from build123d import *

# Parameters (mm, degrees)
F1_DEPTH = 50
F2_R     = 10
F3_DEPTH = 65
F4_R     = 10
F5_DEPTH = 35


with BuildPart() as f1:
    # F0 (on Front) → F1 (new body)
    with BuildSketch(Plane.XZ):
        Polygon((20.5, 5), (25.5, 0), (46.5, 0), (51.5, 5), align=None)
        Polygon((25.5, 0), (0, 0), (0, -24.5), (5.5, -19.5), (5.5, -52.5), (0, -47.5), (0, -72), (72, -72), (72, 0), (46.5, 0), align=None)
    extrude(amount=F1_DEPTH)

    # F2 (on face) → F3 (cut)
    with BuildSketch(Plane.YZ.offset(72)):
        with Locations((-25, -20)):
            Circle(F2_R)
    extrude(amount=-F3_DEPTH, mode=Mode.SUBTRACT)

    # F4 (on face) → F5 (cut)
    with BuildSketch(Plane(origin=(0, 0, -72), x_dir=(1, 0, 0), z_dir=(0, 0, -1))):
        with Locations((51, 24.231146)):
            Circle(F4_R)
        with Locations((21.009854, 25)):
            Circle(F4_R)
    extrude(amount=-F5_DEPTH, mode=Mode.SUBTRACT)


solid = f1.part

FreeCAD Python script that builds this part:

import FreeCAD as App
import Part
import Sketcher

V = App.Vector
Q = App.Units.Quantity

doc = App.newDocument("Part")
body = doc.addObject("PartDesign::Body", "Body")

sketch1 = doc.addObject("Sketcher::SketchObject", "Sketch")
body.addObject(sketch1)
sketch1.AttachmentSupport = (doc.XZ_Plane, [""])
sketch1.MapMode = "FlatFace"
sketch1.addGeometry(Part.LineSegment(V(20, 5, 0), V(26, 0, 0)), False)
sketch1.addGeometry(Part.LineSegment(V(26, 0, 0), V(0, 0, 0)), False)
sketch1.addGeometry(Part.LineSegment(V(0, 0, 0), V(0, -24, 0)), False)
sketch1.addGeometry(Part.LineSegment(V(0, -24, 0), V(6, -20, 0)), False)
sketch1.addGeometry(Part.LineSegment(V(6, -20, 0), V(6, -52, 0)), False)
sketch1.addGeometry(Part.LineSegment(V(6, -52, 0), V(0, -48, 0)), False)
sketch1.addGeometry(Part.LineSegment(V(0, -48, 0), V(0, -72, 0)), False)
sketch1.addGeometry(Part.LineSegment(V(0, -72, 0), V(72, -72, 0)), False)
sketch1.addGeometry(Part.LineSegment(V(72, -72, 0), V(72, 0, 0)), False)
sketch1.addGeometry(Part.LineSegment(V(72, 0, 0), V(46, 0, 0)), False)
sketch1.addGeometry(Part.LineSegment(V(46, 0, 0), V(52, 5, 0)), False)
sketch1.addGeometry(Part.LineSegment(V(52, 5, 0), V(20, 5, 0)), False)
sketch1.addConstraint(Sketcher.Constraint("Coincident", 0, 2, 1, 1))
sketch1.addConstraint(Sketcher.Constraint("Coincident", 1, 2, 2, 1))
sketch1.addConstraint(Sketcher.Constraint("Coincident", 2, 2, 3, 1))
sketch1.addConstraint(Sketcher.Constraint("Coincident", 3, 2, 4, 1))
sketch1.addConstraint(Sketcher.Constraint("Coincident", 4, 2, 5, 1))
sketch1.addConstraint(Sketcher.Constraint("Coincident", 5, 2, 6, 1))
sketch1.addConstraint(Sketcher.Constraint("Coincident", 6, 2, 7, 1))
sketch1.addConstraint(Sketcher.Constraint("Coincident", 7, 2, 8, 1))
sketch1.addConstraint(Sketcher.Constraint("Coincident", 8, 2, 9, 1))
sketch1.addConstraint(Sketcher.Constraint("Coincident", 9, 2, 10, 1))
sketch1.addConstraint(Sketcher.Constraint("Coincident", 10, 2, 11, 1))
sketch1.addConstraint(Sketcher.Constraint("Coincident", 11, 2, 0, 1))
sketch1.addConstraint(Sketcher.Constraint("Horizontal", 1))
sketch1.addConstraint(Sketcher.Constraint("Vertical", 2))
sketch1.addConstraint(Sketcher.Constraint("Vertical", 4))
sketch1.addConstraint(Sketcher.Constraint("Vertical", 6))
sketch1.addConstraint(Sketcher.Constraint("Horizontal", 7))
sketch1.addConstraint(Sketcher.Constraint("Vertical", 8))
sketch1.addConstraint(Sketcher.Constraint("Horizontal", 9))
sketch1.addConstraint(Sketcher.Constraint("Horizontal", 11))
sketch1.addConstraint(Sketcher.Constraint("Coincident", 1, 2, -1, 1))
sketch1.addConstraint(Sketcher.Constraint("PointOnObject", 5, 2, -2))
sketch1.addConstraint(Sketcher.Constraint("PointOnObject", 8, 2, -1))
sketch1.addConstraint(Sketcher.Constraint("Perpendicular", 0, 10))
sketch1.addConstraint(Sketcher.Constraint("Equal", 1, 9))
sketch1.addConstraint(Sketcher.Constraint("Equal", 2, 6))
sketch1.addConstraint(Sketcher.Constraint("Equal", 7, 8))
sketch1.addConstraint(Sketcher.Constraint("Equal", 3, 5))
sketch1.addConstraint(Sketcher.Constraint("Equal", 0, 10))
sketch1.addConstraint(Sketcher.Constraint("DistanceX", 7, 1, 7, 2, Q("72 mm")))
sketch1.addConstraint(Sketcher.Constraint("DistanceX", 11, 2, 11, 1, Q("31 mm")))
sketch1.addConstraint(Sketcher.Constraint("DistanceY", 4, 2, 4, 1, Q("33 mm")))
sketch1.addConstraint(Sketcher.Constraint("DistanceX", 1, 2, 1, 1, Q("25.5 mm")))
sketch1.addConstraint(Sketcher.Constraint("DistanceY", 2, 2, 2, 1, Q("24.5 mm")))
sketch1.addConstraint(Sketcher.Constraint("DistanceX", 3, 2, 0, 2, Q("20 mm")))
pad1 = doc.addObject("PartDesign::Pad", "Pad")
body.addObject(pad1)
pad1.Profile = sketch1
pad1.Length = 50

sketch2 = doc.addObject("Sketcher::SketchObject", "Sketch001")
body.addObject(sketch2)
sketch2.AttachmentSupport = (doc.YZ_Plane, [""])
sketch2.MapMode = "FlatFace"
sketch2.AttachmentOffset = App.Placement(V(0, 0, 72), App.Rotation())
sketch2.addGeometry(Part.Circle(V(-25, -20, 0), V(0, 0, 1), 10), False)
sketch2.addConstraint(Sketcher.Constraint("Diameter", 0, Q("20 mm")))
sketch2.addConstraint(Sketcher.Constraint("DistanceX", 0, 3, -1, 1, Q("25 mm")))
sketch2.addConstraint(Sketcher.Constraint("DistanceY", 0, 3, -1, 1, Q("20 mm")))
pocket1 = doc.addObject("PartDesign::Pocket", "Pocket")
body.addObject(pocket1)
pocket1.Profile = sketch2
pocket1.Length = 65

sketch3 = doc.addObject("Sketcher::SketchObject", "Sketch002")
body.addObject(sketch3)
sketch3.AttachmentSupport = (doc.XY_Plane, [""])
sketch3.MapMode = "FlatFace"
sketch3.AttachmentOffset = App.Placement(V(0, 0, -72), App.Rotation())
sketch3.addGeometry(Part.Circle(V(51, -24, 0), V(0, 0, 1), 10), False)
sketch3.addGeometry(Part.Circle(V(21, -25, 0), V(0, 0, 1), 10), False)
sketch3.addConstraint(Sketcher.Constraint("Equal", 0, 1))
sketch3.addConstraint(Sketcher.Constraint("Diameter", 0, Q("20 mm")))
sketch3.addConstraint(Sketcher.Constraint("DistanceX", -1, 1, 0, 3, Q("51 mm")))
sketch3.addConstraint(Sketcher.Constraint("DistanceY", 1, 3, -1, 1, Q("25 mm")))
sketch3.addConstraint(Sketcher.Constraint("DistanceY", 0, 3, -1, 1, Q("24.231146 mm")))
sketch3.addConstraint(Sketcher.Constraint("DistanceX", -1, 1, 1, 3, Q("21.009854 mm")))
pocket2 = doc.addObject("PartDesign::Pocket", "Pocket001")
body.addObject(pocket2)
pocket2.Profile = sketch3
pocket2.Length = 35
pocket2.Reversed = True

doc.recompute()
